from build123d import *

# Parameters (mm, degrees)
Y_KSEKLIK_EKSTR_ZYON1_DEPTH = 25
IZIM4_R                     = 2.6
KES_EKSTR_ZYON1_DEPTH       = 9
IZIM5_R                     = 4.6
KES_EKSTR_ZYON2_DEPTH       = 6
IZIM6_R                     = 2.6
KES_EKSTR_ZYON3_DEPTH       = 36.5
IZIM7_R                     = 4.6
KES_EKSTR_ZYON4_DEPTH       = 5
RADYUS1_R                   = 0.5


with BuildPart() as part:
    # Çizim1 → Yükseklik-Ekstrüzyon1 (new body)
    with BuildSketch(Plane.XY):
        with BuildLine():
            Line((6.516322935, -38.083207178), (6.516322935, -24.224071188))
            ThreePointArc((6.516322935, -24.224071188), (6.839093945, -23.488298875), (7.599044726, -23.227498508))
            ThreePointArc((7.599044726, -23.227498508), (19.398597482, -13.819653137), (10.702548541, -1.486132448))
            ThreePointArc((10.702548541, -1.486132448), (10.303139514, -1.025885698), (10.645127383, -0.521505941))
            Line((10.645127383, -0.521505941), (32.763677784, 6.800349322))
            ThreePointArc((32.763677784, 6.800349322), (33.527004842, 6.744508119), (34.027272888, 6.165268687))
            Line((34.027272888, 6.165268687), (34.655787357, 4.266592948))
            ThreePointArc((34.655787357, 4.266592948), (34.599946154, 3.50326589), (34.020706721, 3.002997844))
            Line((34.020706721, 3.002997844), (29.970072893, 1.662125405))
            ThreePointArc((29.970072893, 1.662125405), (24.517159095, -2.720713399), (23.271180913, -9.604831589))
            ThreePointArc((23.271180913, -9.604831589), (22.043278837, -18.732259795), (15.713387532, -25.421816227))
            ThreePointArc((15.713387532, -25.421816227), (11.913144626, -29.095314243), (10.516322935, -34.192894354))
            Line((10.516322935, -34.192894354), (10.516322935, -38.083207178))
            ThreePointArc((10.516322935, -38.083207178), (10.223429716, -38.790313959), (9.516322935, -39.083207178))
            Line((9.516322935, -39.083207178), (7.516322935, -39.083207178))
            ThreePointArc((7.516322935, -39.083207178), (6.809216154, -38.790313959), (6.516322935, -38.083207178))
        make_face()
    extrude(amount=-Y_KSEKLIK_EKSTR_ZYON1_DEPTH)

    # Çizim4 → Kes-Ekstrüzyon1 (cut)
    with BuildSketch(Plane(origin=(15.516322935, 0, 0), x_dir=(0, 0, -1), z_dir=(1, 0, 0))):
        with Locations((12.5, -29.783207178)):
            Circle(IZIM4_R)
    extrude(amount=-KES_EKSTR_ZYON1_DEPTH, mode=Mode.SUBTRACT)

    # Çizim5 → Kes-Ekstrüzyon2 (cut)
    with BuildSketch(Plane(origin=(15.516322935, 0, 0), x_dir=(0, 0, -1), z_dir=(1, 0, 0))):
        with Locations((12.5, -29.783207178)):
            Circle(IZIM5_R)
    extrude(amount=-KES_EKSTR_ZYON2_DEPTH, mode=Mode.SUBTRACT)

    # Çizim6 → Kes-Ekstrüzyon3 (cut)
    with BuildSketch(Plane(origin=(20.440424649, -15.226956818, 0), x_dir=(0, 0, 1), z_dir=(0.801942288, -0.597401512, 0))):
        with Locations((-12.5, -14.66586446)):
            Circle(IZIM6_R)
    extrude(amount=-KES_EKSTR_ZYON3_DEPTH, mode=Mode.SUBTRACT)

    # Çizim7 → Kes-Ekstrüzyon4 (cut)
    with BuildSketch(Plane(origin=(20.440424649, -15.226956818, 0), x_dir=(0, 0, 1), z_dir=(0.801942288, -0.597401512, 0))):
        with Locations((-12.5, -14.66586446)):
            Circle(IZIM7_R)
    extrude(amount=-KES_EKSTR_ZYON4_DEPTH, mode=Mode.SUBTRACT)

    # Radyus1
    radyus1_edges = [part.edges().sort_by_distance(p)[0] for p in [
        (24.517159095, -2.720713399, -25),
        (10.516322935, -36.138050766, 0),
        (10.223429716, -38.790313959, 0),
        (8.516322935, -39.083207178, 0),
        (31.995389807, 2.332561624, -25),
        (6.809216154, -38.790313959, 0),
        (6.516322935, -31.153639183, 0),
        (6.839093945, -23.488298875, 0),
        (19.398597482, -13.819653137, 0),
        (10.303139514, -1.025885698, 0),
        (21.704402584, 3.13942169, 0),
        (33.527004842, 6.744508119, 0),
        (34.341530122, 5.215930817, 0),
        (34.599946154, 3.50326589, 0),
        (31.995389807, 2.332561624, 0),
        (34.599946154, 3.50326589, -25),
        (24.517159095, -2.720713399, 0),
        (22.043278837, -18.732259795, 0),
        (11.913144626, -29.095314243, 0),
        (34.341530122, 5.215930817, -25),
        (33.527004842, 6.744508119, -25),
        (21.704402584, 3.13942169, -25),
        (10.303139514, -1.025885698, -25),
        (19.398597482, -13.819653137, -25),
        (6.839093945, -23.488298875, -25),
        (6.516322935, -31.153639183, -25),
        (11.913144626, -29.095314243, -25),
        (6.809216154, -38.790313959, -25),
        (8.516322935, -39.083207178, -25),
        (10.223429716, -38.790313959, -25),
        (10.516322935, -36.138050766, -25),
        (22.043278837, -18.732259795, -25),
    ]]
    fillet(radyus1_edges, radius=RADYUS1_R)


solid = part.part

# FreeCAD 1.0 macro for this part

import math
import FreeCAD as App
import Part
import Sketcher

V = App.Vector
Q = App.Units.Quantity


def edges_at(feature, points):
    """Names of the edges that pass closest to the given points."""
    edges = feature.Shape.Edges
    near = lambda p: min(range(len(edges)), key=lambda i: edges[i].distToShape(Part.Vertex(*p))[0])
    return sorted({f"Edge{near(p) + 1}" for p in points})

doc = App.newDocument("Part")
body = doc.addObject("PartDesign::Body", "Body")

# Sketch on XY plane
sketch1 = body.newObject("Sketcher::SketchObject", "Sketch")
sketch1.AttachmentSupport = (doc.getObject("XY_Plane"), [""])
sketch1.MapMode = "FlatFace"
sketch1.addGeometry([
    Part.LineSegment(V(6.5, -24.2, 0), V(6.5, -38.1, 0)),  # 0
    Part.ArcOfCircle(Part.Circle(V(7.5, -38.1, 0), V(0, 0, 1), 1), math.radians(-180), math.radians(-90)),  # 1
    Part.LineSegment(V(7.5, -39.1, 0), V(9.5, -39.1, 0)),  # 2
    Part.ArcOfCircle(Part.Circle(V(9.5, -38.1, 0), V(0, 0, 1), 1), math.radians(-90), math.radians(0)),  # 3
    Part.LineSegment(V(10.5, -38.1, 0), V(10.5, -34.2, 0)),  # 4
    Part.ArcOfCircle(Part.Circle(V(20.5, -34.2, 0), V(0, 0, 1), 10), math.radians(119), math.radians(180)),  # 5
    Part.ArcOfCircle(Part.Circle(V(8.5, -12.3, 0), V(0, 0, 1), 15), math.radians(-61), math.radians(10)),  # 6
    Part.ArcOfCircle(Part.Circle(V(33.1, -7.8, 0), V(0, 0, 1), 10), math.radians(108), math.radians(190)),  # 7
    Part.LineSegment(V(30, 1.7, 0), V(34, 3, 0)),  # 8
    Part.ArcOfCircle(Part.Circle(V(33.7, 4, 0), V(0, 0, 1), 1), math.radians(-72), math.radians(18)),  # 9
    Part.LineSegment(V(34.7, 4.3, 0), V(34, 6.2, 0)),  # 10
    Part.ArcOfCircle(Part.Circle(V(33.1, 5.9, 0), V(0, 0, 1), 1), math.radians(18), math.radians(108)),  # 11
    Part.LineSegment(V(32.8, 6.8, 0), V(10.6, -0.5, 0)),  # 12
    Part.ArcOfCircle(Part.Circle(V(10.8, -1, 0), V(0, 0, 1), 0.5), math.radians(108), math.radians(258)),  # 13
    Part.ArcOfCircle(Part.Circle(V(8.5, -12.3, 0), V(0, 0, 1), 11), math.radians(-95), math.radians(78)),  # 14
    Part.ArcOfCircle(Part.Circle(V(7.5, -24.2, 0), V(0, 0, 1), 1), math.radians(85), math.radians(180)),  # 15
], False)
sketch1.addConstraint([
    Sketcher.Constraint("Tangent", 0, 2, 1, 1),
    Sketcher.Constraint("Tangent", 1, 2, 2, 1),
    Sketcher.Constraint("Tangent", 2, 2, 3, 1),
    Sketcher.Constraint("Tangent", 3, 2, 4, 1),
    Sketcher.Constraint("Tangent", 4, 2, 5, 2),
    Sketcher.Constraint("Tangent", 5, 1, 6, 1),
    Sketcher.Constraint("Tangent", 6, 2, 7, 2),
    Sketcher.Constraint("Tangent", 7, 1, 8, 1),
    Sketcher.Constraint("Tangent", 8, 2, 9, 1),
    Sketcher.Constraint("Tangent", 9, 2, 10, 1),
    Sketcher.Constraint("Tangent", 10, 2, 11, 1),
    Sketcher.Constraint("Tangent", 11, 2, 12, 1),
    Sketcher.Constraint("Tangent", 12, 2, 13, 1),
    Sketcher.Constraint("Tangent", 13, 2, 14, 2),
    Sketcher.Constraint("Tangent", 14, 1, 15, 1),
    Sketcher.Constraint("Tangent", 15, 2, 0, 1),
    Sketcher.Constraint("Vertical", 0),
    Sketcher.Constraint("Horizontal", 2),
    Sketcher.Constraint("Vertical", 4),
    Sketcher.Constraint("Coincident", 14, 3, 6, 3),
    Sketcher.Constraint("Equal", 1, 3),
    Sketcher.Constraint("Equal", 5, 7),
    Sketcher.Constraint("Equal", 3, 9),
    Sketcher.Constraint("Equal", 9, 11),
    Sketcher.Constraint("Equal", 11, 15),
    Sketcher.Constraint("Perpendicular", 8, 10),
    Sketcher.Constraint("Perpendicular", 10, 12),
    Sketcher.Constraint("Radius", 1, Q("1 mm")),
    Sketcher.Constraint("Radius", 5, Q("10 mm")),
    Sketcher.Constraint("Radius", 6, Q("15 mm")),
    Sketcher.Constraint("Radius", 14, Q("11 mm")),
    Sketcher.Constraint("Radius", 13, Q("0.5 mm")),
    Sketcher.Constraint("DistanceX", 2, 1, 2, 2, Q("2 mm")),
    Sketcher.Constraint("Distance", 10, Q("2 mm")),
    Sketcher.Constraint("Distance", 8, Q("4.266799 mm")),
    Sketcher.Constraint("DistanceY", 6, 3, -1, 1, Q("12.265199 mm")),
    Sketcher.Constraint("DistanceY", 14, 1, -1, 1, Q("23.227499 mm")),
    Sketcher.Constraint("DistanceY", 13, 3, 7, 1, Q("2.6583 mm")),
    Sketcher.Constraint("DistanceX", 7, 1, 10, 2, Q("4.0572 mm")),
    Sketcher.Constraint("DistanceY", 0, 2, 0, 1, Q("13.859136 mm")),
    Sketcher.Constraint("DistanceX", -1, 1, 9, 3, Q("33.706449 mm")),
])
pad1 = body.newObject("PartDesign::Pad", "Pad")
pad1.Profile = sketch1
pad1.Length = 25
pad1.Reversed = True

# Sketch on YZ plane
sketch2 = body.newObject("Sketcher::SketchObject", "Sketch001")
sketch2.AttachmentSupport = (doc.getObject("YZ_Plane"), [""])
sketch2.MapMode = "FlatFace"
sketch2.AttachmentOffset = App.Placement(V(0, 0, 15.516323), App.Rotation())
sketch2.addGeometry(Part.Circle(V(-29.8, -12.5, 0), V(0, 0, 1), 2.6), False)
sketch2.addConstraint([
    Sketcher.Constraint("Diameter", 0, Q("5.2 mm")),
    Sketcher.Constraint("DistanceY", 0, 3, -1, 1, Q("12.5 mm")),
    Sketcher.Constraint("DistanceX", 0, 3, -1, 1, Q("29.783207 mm")),
])
pocket1 = body.newObject("PartDesign::Pocket", "Pocket")
pocket1.Profile = sketch2
pocket1.Length = 9

# Sketch on YZ plane
sketch3 = body.newObject("Sketcher::SketchObject", "Sketch002")
sketch3.AttachmentSupport = (doc.getObject("YZ_Plane"), [""])
sketch3.MapMode = "FlatFace"
sketch3.AttachmentOffset = App.Placement(V(0, 0, 15.516323), App.Rotation())
sketch3.addGeometry(Part.Circle(V(-29.8, -12.5, 0), V(0, 0, 1), 4.6), False)
sketch3.addConstraint([
    Sketcher.Constraint("Diameter", 0, Q("9.2 mm")),
    Sketcher.Constraint("DistanceY", 0, 3, -1, 1, Q("12.5 mm")),
    Sketcher.Constraint("DistanceX", 0, 3, -1, 1, Q("29.783207 mm")),
])
pocket2 = body.newObject("PartDesign::Pocket", "Pocket001")
pocket2.Profile = sketch3
pocket2.Length = 6

# Sketch on an angled plane
sketch4 = body.newObject("Sketcher::SketchObject", "Sketch003")
sketch4.Placement = App.Placement(V(20.440425, -15.226957, 0), App.Rotation(V(0, 0, 1), V(-0.597401512, -0.801942288, 0), V(0.801942288, -0.597401512, 0), "ZXY"))
sketch4.addGeometry(Part.Circle(V(-12.5, -14.7, 0), V(0, 0, 1), 2.6), False)
sketch4.addConstraint([
    Sketcher.Constraint("Diameter", 0, Q("5.2 mm")),
    Sketcher.Constraint("DistanceX", 0, 3, -1, 1, Q("12.5 mm")),
    Sketcher.Constraint("DistanceY", 0, 3, -1, 1, Q("14.665864 mm")),
])
pocket3 = body.newObject("PartDesign::Pocket", "Pocket002")
pocket3.Profile = sketch4
pocket3.Length = 36.5

# Sketch on an angled plane
sketch5 = body.newObject("Sketcher::SketchObject", "Sketch004")
sketch5.Placement = App.Placement(V(20.440425, -15.226957, 0), App.Rotation(V(0, 0, 1), V(-0.597401512, -0.801942288, 0), V(0.801942288, -0.597401512, 0), "ZXY"))
sketch5.addGeometry(Part.Circle(V(-12.5, -14.7, 0), V(0, 0, 1), 4.6), False)
sketch5.addConstraint([
    Sketcher.Constraint("Diameter", 0, Q("9.2 mm")),
    Sketcher.Constraint("DistanceX", 0, 3, -1, 1, Q("12.5 mm")),
    Sketcher.Constraint("DistanceY", 0, 3, -1, 1, Q("14.665864 mm")),
])
pocket4 = body.newObject("PartDesign::Pocket", "Pocket003")
pocket4.Profile = sketch5
pocket4.Length = 5
doc.recompute()

fillet = body.newObject("PartDesign::Fillet", "Fillet")
fillet.Base = (pocket4, edges_at(pocket4, [
    (24.517, -2.721, -25),
    (10.516, -36.138, 0),
    (10.223, -38.79, 0),
    (8.516, -39.083, 0),
    (31.995, 2.333, -25),
    (6.809, -38.79, 0),
    (6.516, -31.154, 0),
    (6.839, -23.488, 0),
    (19.399, -13.82, 0),
    (10.303, -1.026, 0),
    (21.704, 3.139, 0),
    (33.527, 6.745, 0),
    (34.342, 5.216, 0),
    (34.6, 3.503, 0),
    (31.995, 2.333, 0),
    (34.6, 3.503, -25),
    (24.517, -2.721, 0),
    (22.043, -18.732, 0),
    (11.913, -29.095, 0),
    (34.342, 5.216, -25),
    (33.527, 6.745, -25),
    (21.704, 3.139, -25),
    (10.303, -1.026, -25),
    (19.399, -13.82, -25),
    (6.839, -23.488, -25),
    (6.516, -31.154, -25),
    (11.913, -29.095, -25),
    (6.809, -38.79, -25),
    (8.516, -39.083, -25),
    (10.223, -38.79, -25),
    (10.516, -36.138, -25),
    (22.043, -18.732, -25),
]))
fillet.Radius = 0.5

doc.recompute()
